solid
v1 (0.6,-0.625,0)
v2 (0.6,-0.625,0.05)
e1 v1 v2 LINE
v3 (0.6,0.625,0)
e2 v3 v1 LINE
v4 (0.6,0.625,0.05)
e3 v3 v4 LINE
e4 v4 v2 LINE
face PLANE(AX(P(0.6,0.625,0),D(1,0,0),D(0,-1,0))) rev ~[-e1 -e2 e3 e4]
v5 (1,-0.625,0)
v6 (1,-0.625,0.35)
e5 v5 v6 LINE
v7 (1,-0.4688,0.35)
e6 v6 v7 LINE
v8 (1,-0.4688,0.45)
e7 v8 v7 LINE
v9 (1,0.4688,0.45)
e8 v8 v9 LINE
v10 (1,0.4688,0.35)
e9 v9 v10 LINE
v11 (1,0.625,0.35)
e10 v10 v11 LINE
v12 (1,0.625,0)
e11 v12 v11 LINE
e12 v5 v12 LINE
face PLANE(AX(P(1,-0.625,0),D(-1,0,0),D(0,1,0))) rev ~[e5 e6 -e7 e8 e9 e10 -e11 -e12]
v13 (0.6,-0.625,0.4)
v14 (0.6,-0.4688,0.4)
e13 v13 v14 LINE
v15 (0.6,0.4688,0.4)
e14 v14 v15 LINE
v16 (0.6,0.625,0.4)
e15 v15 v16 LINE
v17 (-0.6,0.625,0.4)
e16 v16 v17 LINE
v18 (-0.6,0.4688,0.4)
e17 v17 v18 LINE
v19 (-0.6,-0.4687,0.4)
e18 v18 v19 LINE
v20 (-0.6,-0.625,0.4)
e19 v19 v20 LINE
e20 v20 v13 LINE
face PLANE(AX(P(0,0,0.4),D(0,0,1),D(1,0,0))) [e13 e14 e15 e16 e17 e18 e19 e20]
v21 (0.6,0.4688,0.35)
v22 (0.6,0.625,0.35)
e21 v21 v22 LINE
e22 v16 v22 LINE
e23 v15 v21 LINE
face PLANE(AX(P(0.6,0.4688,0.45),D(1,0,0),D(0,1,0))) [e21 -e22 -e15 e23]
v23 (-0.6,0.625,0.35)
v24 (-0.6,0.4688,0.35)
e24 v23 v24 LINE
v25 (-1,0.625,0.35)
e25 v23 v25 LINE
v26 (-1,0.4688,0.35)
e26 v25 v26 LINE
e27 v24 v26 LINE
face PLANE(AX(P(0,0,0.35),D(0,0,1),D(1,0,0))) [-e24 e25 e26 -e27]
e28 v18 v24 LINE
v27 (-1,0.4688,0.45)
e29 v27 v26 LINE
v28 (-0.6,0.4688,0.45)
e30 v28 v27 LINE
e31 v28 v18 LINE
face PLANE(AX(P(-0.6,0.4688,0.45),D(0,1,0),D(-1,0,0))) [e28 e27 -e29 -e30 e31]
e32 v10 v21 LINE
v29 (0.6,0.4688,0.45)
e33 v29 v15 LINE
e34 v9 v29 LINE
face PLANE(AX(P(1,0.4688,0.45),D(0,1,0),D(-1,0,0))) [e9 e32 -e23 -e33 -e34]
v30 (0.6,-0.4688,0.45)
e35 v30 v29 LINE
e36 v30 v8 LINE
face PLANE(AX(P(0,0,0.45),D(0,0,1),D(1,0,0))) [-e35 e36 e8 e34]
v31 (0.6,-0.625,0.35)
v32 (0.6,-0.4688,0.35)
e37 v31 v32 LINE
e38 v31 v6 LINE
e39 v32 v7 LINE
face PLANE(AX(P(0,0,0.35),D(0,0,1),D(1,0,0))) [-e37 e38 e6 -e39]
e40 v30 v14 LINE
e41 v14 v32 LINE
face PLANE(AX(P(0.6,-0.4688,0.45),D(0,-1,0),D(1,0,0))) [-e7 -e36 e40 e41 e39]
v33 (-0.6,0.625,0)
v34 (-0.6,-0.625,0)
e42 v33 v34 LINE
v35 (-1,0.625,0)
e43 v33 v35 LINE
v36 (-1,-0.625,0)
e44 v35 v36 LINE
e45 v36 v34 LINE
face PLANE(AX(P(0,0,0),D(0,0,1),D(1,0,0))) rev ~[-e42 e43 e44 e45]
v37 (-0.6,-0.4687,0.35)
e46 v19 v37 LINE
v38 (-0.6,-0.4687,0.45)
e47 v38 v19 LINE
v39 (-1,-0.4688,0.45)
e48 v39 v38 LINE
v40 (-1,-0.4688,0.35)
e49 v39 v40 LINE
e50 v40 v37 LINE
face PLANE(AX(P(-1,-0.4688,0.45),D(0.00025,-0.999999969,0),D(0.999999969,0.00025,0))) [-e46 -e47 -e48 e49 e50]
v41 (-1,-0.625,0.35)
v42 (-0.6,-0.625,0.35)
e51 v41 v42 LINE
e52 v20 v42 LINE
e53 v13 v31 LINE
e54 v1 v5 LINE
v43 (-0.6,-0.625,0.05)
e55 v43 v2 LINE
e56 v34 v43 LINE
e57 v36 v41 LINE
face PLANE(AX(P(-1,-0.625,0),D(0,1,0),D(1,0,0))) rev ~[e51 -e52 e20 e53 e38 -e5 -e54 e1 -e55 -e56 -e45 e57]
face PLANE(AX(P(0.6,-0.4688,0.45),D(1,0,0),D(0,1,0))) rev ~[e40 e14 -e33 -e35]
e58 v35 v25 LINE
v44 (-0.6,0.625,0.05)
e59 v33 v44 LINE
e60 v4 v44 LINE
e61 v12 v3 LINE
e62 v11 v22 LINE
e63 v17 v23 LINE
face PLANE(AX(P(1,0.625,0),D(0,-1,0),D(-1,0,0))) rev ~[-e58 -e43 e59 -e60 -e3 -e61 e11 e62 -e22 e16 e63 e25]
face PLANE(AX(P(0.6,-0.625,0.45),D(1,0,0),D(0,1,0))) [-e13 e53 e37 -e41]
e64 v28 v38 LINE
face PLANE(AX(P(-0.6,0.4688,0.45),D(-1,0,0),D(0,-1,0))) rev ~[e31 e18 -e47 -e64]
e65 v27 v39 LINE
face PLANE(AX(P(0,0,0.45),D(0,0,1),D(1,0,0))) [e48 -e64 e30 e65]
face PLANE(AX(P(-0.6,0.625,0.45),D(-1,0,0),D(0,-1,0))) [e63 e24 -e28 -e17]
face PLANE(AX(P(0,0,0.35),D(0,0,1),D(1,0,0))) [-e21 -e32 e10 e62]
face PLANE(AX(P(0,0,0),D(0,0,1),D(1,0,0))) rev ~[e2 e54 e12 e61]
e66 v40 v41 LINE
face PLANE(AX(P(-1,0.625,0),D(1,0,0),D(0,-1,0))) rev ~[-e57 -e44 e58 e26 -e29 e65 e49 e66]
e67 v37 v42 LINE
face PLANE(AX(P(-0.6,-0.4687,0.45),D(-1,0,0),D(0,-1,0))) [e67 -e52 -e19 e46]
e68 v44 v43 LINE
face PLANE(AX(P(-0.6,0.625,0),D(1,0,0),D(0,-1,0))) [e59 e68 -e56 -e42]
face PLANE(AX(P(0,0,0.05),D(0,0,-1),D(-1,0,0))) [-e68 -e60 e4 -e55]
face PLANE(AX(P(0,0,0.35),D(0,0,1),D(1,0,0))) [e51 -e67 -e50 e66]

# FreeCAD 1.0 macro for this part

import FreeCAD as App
import Part
import Sketcher
Q = App.Units.Quantity


def add_polygon(sketch, points):
    """Adds a closed chain of lines whose ends are joined by coincident constraints."""
    first, n = sketch.GeometryCount, len(points)
    for a, b in zip(points, points[1:] + points[:1]):
        sketch.addGeometry(Part.LineSegment(App.Vector(*a, 0), App.Vector(*b, 0)), False)
    for i in range(n):
        sketch.addConstraint(Sketcher.Constraint("Coincident", first + i, 2, first + (i + 1) % n, 1))

doc = App.newDocument("Part")
body = doc.addObject("PartDesign::Body", "Body")

# Sketch on XY plane
sketch1 = body.newObject("Sketcher::SketchObject", "Sketch")
sketch1.AttachmentSupport = (doc.getObject("XY_Plane"), [""])
sketch1.MapMode = "FlatFace"
add_polygon(sketch1, [(-1, 0.625), (-1, -0.625), (1, -0.625), (1, 0.625)])  # lines 0-3
sketch1.addConstraint(Sketcher.Constraint("Vertical", 0))
sketch1.addConstraint(Sketcher.Constraint("Horizontal", 1))
sketch1.addConstraint(Sketcher.Constraint("Vertical", 2))
sketch1.addConstraint(Sketcher.Constraint("Horizontal", 3))
sketch1.addConstraint(Sketcher.Constraint("Symmetric", 0, 2, 2, 2, -1, 1))
sketch1.addConstraint(Sketcher.Constraint("DistanceX", 1, 1, 1, 2, Q("2 mm")))
sketch1.addConstraint(Sketcher.Constraint("DistanceY", 0, 2, 0, 1, Q("1.25 mm")))
pad1 = body.newObject("PartDesign::Pad", "Pad")
pad1.Profile = sketch1
pad1.Length = 0.45

# Sketch on XY plane
sketch2 = body.newObject("Sketcher::SketchObject", "Sketch001")
sketch2.AttachmentSupport = (doc.getObject("XY_Plane"), [""])
sketch2.MapMode = "FlatFace"
sketch2.AttachmentOffset = App.Placement(App.Vector(0, 0, 0.45), App.Rotation())
add_polygon(sketch2, [(-1, -0.4688), (-1, -0.625), (-0.6, -0.625), (-0.6, -0.4687)])  # lines 0-3
add_polygon(sketch2, [(0.6, -0.4688), (0.6, -0.625), (1, -0.625), (1, -0.4688)])  # lines 4-7
add_polygon(sketch2, [(-1, 0.625), (-1, 0.4688), (-0.6, 0.4688), (-0.6, 0.625)])  # lines 8-11
add_polygon(sketch2, [(0.6, 0.625), (0.6, 0.4688), (1, 0.4688), (1, 0.625)])  # lines 12-15
sketch2.addConstraint(Sketcher.Constraint("Vertical", 0))
sketch2.addConstraint(Sketcher.Constraint("Horizontal", 1))
sketch2.addConstraint(Sketcher.Constraint("Vertical", 2))
sketch2.addConstraint(Sketcher.Constraint("Horizontal", 3))
sketch2.addConstraint(Sketcher.Constraint("Vertical", 4))
sketch2.addConstraint(Sketcher.Constraint("Horizontal", 5))
sketch2.addConstraint(Sketcher.Constraint("Vertical", 6))
sketch2.addConstraint(Sketcher.Constraint("Horizontal", 7))
sketch2.addConstraint(Sketcher.Constraint("Vertical", 8))
sketch2.addConstraint(Sketcher.Constraint("Horizontal", 9))
sketch2.addConstraint(Sketcher.Constraint("Vertical", 10))
sketch2.addConstraint(Sketcher.Constraint("Horizontal", 11))
sketch2.addConstraint(Sketcher.Constraint("Vertical", 12))
sketch2.addConstraint(Sketcher.Constraint("Horizontal", 13))
sketch2.addConstraint(Sketcher.Constraint("Vertical", 14))
sketch2.addConstraint(Sketcher.Constraint("Horizontal", 15))
sketch2.addConstraint(Sketcher.Constraint("Symmetric", 6, 2, 8, 2, -1, 1))
sketch2.addConstraint(Sketcher.Constraint("Symmetric", 4, 2, 10, 2, -1, 1))
sketch2.addConstraint(Sketcher.Constraint("Symmetric", 2, 2, 12, 2, -1, 1))
sketch2.addConstraint(Sketcher.Constraint("Symmetric", 0, 2, 14, 2, -1, 1))
sketch2.addConstraint(Sketcher.Constraint("Symmetric", 1, 2, 4, 2, -2))
sketch2.addConstraint(Sketcher.Constraint("Symmetric", 3, 2, 6, 2, -2))
sketch2.addConstraint(Sketcher.Constraint("DistanceX", 1, 1, 1, 2, Q("0.4 mm")))
sketch2.addConstraint(Sketcher.Constraint("DistanceY", 0, 2, 0, 1, Q("0.1562 mm")))
sketch2.addConstraint(Sketcher.Constraint("DistanceX", 0, 2, -1, 1, Q("1 mm")))
sketch2.addConstraint(Sketcher.Constraint("DistanceY", 3, 2, 8, 2, Q("0.9376 mm")))
pocket1 = body.newObject("PartDesign::Pocket", "Pocket")
pocket1.Profile = sketch2
pocket1.Length = 0.1

# Sketch on XY plane
sketch3 = body.newObject("Sketcher::SketchObject", "Sketch002")
sketch3.AttachmentSupport = (doc.getObject("XY_Plane"), [""])
sketch3.MapMode = "FlatFace"
sketch3.AttachmentOffset = App.Placement(App.Vector(0, 0, 0.45), App.Rotation())
add_polygon(sketch3, [(0.6, 0.625), (-0.6, 0.625), (-0.6, -0.625), (0.6, -0.625)])  # lines 0-3
sketch3.addConstraint(Sketcher.Constraint("Horizontal", 0))
sketch3.addConstraint(Sketcher.Constraint("Vertical", 1))
sketch3.addConstraint(Sketcher.Constraint("Horizontal", 2))
sketch3.addConstraint(Sketcher.Constraint("Vertical", 3))
sketch3.addConstraint(Sketcher.Constraint("Symmetric", 0, 2, 2, 2, -1, 1))
sketch3.addConstraint(Sketcher.Constraint("DistanceX", 0, 2, 0, 1, Q("1.2 mm")))
sketch3.addConstraint(Sketcher.Constraint("DistanceY", 1, 2, 1, 1, Q("1.25 mm")))
pocket2 = body.newObject("PartDesign::Pocket", "Pocket001")
pocket2.Profile = sketch3
pocket2.Length = 0.05

# Sketch on XY plane
sketch4 = body.newObject("Sketcher::SketchObject", "Sketch003")
sketch4.AttachmentSupport = (doc.getObject("XY_Plane"), [""])
sketch4.MapMode = "FlatFace"
add_polygon(sketch4, [(0.6, -0.625), (-0.6, -0.625), (-0.6, 0.625), (0.6, 0.625)])  # lines 0-3
sketch4.addConstraint(Sketcher.Constraint("Horizontal", 0))
sketch4.addConstraint(Sketcher.Constraint("Vertical", 1))
sketch4.addConstraint(Sketcher.Constraint("Horizontal", 2))
sketch4.addConstraint(Sketcher.Constraint("Vertical", 3))
sketch4.addConstraint(Sketcher.Constraint("Symmetric", 0, 2, 2, 2, -1, 1))
sketch4.addConstraint(Sketcher.Constraint("DistanceX", 0, 2, 0, 1, Q("1.2 mm")))
sketch4.addConstraint(Sketcher.Constraint("DistanceY", 1, 1, 1, 2, Q("1.25 mm")))
pocket3 = body.newObject("PartDesign::Pocket", "Pocket002")
pocket3.Profile = sketch4
pocket3.Length = 0.05
pocket3.Reversed = True

doc.recompute()
